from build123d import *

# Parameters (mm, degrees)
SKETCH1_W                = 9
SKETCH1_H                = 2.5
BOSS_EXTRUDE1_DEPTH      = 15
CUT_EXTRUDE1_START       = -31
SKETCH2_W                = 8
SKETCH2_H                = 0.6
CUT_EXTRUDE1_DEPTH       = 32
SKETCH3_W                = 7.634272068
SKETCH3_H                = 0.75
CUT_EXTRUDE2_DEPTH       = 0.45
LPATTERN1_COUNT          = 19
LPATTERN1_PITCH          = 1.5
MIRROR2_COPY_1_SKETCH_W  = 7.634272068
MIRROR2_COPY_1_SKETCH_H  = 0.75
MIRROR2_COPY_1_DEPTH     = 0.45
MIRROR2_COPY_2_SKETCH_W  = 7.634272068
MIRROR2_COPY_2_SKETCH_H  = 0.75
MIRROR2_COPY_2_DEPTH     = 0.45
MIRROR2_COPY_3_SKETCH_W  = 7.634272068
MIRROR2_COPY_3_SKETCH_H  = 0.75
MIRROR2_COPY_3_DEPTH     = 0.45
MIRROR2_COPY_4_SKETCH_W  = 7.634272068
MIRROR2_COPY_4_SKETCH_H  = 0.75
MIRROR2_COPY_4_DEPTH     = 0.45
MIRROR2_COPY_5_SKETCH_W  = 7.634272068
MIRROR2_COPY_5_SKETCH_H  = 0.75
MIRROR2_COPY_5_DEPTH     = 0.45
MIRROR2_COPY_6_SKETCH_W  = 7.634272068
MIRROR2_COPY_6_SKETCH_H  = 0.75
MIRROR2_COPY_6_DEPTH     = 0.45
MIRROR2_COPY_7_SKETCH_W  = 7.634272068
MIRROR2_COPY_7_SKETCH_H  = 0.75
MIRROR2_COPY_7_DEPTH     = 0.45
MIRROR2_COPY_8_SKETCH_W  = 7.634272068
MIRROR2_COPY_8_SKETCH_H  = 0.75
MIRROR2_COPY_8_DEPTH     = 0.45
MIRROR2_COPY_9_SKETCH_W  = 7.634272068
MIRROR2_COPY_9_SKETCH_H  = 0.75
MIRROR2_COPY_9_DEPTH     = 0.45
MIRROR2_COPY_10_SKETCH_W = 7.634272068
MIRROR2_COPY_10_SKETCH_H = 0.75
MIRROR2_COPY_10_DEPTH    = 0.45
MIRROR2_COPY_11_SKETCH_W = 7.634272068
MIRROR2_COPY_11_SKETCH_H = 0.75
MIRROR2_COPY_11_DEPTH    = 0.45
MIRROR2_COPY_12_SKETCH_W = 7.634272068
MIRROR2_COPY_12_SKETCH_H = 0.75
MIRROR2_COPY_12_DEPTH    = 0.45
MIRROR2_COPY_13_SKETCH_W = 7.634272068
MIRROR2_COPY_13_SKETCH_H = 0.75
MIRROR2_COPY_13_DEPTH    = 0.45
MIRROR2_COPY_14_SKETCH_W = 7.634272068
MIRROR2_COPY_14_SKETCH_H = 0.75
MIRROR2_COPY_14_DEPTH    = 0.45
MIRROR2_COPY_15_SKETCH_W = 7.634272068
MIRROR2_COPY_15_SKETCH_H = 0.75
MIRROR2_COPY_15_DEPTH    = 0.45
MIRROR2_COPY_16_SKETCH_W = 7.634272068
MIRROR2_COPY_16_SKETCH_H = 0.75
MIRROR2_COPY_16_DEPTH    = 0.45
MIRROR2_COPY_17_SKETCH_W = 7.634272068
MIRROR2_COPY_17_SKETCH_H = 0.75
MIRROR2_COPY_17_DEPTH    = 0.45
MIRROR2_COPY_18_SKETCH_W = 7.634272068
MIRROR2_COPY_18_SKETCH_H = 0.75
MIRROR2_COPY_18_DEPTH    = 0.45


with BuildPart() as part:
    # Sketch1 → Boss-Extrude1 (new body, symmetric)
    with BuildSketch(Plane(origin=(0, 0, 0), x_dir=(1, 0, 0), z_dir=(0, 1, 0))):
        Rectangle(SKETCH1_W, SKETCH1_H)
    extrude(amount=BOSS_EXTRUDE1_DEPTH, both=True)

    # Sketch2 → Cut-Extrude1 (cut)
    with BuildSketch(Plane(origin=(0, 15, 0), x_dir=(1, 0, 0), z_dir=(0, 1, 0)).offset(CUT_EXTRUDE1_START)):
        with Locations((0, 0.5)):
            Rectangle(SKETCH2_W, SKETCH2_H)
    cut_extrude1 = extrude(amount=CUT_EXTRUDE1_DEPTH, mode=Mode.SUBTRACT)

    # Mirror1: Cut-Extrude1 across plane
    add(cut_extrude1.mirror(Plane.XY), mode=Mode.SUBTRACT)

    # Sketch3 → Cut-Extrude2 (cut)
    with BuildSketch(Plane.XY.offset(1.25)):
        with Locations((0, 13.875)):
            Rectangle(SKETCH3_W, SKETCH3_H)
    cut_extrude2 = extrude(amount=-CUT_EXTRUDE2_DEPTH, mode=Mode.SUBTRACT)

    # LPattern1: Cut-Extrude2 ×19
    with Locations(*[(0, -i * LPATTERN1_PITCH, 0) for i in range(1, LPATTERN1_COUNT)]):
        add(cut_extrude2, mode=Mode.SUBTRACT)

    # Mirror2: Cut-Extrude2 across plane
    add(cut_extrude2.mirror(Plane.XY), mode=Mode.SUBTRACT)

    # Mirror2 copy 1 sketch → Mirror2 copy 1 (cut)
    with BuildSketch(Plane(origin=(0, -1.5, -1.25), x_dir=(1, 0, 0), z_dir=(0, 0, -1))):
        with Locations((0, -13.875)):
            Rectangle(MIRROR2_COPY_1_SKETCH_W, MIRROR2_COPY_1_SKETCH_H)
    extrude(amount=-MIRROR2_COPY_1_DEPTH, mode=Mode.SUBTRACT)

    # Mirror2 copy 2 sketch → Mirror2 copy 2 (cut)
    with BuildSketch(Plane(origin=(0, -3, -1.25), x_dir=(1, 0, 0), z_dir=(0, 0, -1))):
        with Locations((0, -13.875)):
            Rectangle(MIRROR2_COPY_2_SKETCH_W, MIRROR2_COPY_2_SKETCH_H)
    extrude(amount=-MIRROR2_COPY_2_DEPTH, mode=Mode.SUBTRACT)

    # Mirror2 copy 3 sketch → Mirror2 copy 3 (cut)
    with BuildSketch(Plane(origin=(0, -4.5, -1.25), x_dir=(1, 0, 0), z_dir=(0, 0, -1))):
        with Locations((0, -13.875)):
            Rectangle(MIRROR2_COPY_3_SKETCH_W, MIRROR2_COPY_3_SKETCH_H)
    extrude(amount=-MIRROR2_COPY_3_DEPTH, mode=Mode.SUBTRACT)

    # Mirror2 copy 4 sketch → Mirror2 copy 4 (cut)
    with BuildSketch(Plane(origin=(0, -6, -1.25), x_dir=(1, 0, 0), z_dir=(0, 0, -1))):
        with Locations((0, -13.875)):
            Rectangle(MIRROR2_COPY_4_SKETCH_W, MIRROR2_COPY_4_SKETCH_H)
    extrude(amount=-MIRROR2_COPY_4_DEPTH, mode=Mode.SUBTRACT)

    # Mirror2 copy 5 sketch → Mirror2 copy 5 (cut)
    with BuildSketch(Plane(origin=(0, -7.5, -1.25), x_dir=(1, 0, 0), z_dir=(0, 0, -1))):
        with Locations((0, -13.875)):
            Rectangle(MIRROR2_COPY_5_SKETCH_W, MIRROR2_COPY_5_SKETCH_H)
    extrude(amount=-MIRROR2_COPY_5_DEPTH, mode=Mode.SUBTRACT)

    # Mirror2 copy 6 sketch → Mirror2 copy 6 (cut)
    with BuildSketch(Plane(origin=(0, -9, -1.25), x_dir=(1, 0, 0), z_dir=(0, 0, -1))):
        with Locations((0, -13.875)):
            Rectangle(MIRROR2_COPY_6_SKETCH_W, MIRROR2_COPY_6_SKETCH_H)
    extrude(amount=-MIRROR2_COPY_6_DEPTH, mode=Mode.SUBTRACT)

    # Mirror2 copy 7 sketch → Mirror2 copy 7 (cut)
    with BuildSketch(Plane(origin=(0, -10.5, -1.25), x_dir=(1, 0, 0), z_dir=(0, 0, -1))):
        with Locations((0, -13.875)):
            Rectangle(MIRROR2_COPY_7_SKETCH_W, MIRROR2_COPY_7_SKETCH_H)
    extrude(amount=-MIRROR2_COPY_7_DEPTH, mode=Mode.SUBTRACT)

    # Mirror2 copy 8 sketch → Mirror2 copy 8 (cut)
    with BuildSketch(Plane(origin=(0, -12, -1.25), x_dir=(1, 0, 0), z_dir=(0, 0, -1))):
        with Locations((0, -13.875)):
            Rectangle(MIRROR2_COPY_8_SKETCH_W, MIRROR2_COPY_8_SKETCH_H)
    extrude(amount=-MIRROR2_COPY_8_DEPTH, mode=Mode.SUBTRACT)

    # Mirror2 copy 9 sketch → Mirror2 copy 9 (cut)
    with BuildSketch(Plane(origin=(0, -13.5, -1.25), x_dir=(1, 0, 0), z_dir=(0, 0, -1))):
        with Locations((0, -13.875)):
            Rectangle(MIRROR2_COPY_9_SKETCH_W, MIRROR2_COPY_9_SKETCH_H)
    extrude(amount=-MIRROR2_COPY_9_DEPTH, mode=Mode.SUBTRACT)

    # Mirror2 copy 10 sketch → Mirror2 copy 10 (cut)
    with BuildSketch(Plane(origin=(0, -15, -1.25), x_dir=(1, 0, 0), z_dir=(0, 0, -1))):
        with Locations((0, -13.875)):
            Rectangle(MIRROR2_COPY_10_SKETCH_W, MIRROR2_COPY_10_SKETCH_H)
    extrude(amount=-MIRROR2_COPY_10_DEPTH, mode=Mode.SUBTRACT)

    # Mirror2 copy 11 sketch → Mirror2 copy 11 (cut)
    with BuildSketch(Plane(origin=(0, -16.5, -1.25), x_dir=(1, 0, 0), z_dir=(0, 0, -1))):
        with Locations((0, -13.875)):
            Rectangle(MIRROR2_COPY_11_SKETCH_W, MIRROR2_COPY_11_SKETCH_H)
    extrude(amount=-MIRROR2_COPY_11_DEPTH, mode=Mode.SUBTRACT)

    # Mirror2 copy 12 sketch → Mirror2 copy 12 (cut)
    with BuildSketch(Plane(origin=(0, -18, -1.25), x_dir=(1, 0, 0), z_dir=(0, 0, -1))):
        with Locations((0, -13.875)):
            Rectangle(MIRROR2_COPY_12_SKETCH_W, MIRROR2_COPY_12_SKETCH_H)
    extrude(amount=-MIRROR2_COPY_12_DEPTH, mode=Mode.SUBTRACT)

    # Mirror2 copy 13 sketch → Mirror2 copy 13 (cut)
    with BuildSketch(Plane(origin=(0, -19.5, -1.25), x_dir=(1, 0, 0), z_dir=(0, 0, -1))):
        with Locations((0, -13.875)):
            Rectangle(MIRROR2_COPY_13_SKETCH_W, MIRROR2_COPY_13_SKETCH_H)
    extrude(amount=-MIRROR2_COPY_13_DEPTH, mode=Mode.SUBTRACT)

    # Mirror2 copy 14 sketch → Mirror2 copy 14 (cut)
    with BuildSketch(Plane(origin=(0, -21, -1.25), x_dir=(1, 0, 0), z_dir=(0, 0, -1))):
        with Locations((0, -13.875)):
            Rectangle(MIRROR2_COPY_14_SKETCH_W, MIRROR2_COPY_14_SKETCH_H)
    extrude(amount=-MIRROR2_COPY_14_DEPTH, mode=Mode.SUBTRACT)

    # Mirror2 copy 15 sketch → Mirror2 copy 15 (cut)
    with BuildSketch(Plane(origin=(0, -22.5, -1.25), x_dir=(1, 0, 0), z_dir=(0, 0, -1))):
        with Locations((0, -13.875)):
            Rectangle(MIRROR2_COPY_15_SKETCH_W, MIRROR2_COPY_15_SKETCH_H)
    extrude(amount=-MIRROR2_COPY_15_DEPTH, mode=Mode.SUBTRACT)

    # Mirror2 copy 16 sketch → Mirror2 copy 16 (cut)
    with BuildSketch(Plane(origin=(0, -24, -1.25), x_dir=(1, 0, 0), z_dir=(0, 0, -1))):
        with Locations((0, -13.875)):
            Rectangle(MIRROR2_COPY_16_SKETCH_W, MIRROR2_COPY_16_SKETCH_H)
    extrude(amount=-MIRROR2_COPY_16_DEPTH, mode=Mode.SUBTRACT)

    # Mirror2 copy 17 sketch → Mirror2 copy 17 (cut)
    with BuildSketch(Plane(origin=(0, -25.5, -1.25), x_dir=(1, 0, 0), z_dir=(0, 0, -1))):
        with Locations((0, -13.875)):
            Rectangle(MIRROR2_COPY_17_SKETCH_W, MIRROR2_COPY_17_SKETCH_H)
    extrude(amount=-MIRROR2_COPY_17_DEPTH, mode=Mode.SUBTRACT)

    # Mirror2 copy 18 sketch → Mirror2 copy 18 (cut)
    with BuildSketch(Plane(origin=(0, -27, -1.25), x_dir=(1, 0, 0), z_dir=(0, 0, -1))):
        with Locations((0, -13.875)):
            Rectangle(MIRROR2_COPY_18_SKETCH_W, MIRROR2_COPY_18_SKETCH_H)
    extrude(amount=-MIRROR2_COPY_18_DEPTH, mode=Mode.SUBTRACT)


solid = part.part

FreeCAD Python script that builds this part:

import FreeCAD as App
import Part
import Sketcher

V = App.Vector

doc = App.newDocument("Part")
body = doc.addObject("PartDesign::Body", "Body")

# Sketch on XZ plane
sketch1 = body.newObject("Sketcher::SketchObject", "Sketch")
sketch1.AttachmentSupport = (doc.getObject("XZ_Plane"), [""])
sketch1.MapMode = "FlatFace"
sketch1.addGeometry(Part.LineSegment(V(-4.5, -1.25, 0), V(-4.5, 1.25, 0)), False)
sketch1.addGeometry(Part.LineSegment(V(-4.5, 1.25, 0), V(4.5, 1.25, 0)), False)
sketch1.addGeometry(Part.LineSegment(V(4.5, 1.25, 0), V(4.5, -1.25, 0)), False)
sketch1.addGeometry(Part.LineSegment(V(4.5, -1.25, 0), V(-4.5, -1.25, 0)), False)
sketch1.addConstraint(Sketcher.Constraint("Coincident", 0, 2, 1, 1))
sketch1.addConstraint(Sketcher.Constraint("Coincident", 1, 2, 2, 1))
sketch1.addConstraint(Sketcher.Constraint("Coincident", 2, 2, 3, 1))
sketch1.addConstraint(Sketcher.Constraint("Coincident", 3, 2, 0, 1))
sketch1.addConstraint(Sketcher.Constraint("Vertical", 0))
sketch1.addConstraint(Sketcher.Constraint("Horizontal", 1))
sketch1.addConstraint(Sketcher.Constraint("Vertical", 2))
sketch1.addConstraint(Sketcher.Constraint("Horizontal", 3))
sketch1.addConstraint(Sketcher.Constraint("Symmetric", 0, 2, 2, 2, -1, 1))
sketch1.addConstraint(Sketcher.Constraint("DistanceX", 1, 1, 1, 2, 9.0))
sketch1.addConstraint(Sketcher.Constraint("DistanceY", 0, 1, 0, 2, 2.5))
pad1 = body.newObject("PartDesign::Pad", "Pad")
pad1.Profile = sketch1
pad1.Length = 30
pad1.Midplane = True

# Sketch on XZ plane
sketch2 = body.newObject("Sketcher::SketchObject", "Sketch001")
sketch2.AttachmentSupport = (doc.getObject("XZ_Plane"), [""])
sketch2.MapMode = "FlatFace"
sketch2.AttachmentOffset = App.Placement(V(0, 0, 16), App.Rotation())
sketch2.addGeometry(Part.LineSegment(V(-4, -0.8, 0), V(-4, -0.2, 0)), False)
sketch2.addGeometry(Part.LineSegment(V(-4, -0.2, 0), V(4, -0.2, 0)), False)
sketch2.addGeometry(Part.LineSegment(V(4, -0.2, 0), V(4, -0.8, 0)), False)
sketch2.addGeometry(Part.LineSegment(V(4, -0.8, 0), V(-4, -0.8, 0)), False)
sketch2.addConstraint(Sketcher.Constraint("Coincident", 0, 2, 1, 1))
sketch2.addConstraint(Sketcher.Constraint("Coincident", 1, 2, 2, 1))
sketch2.addConstraint(Sketcher.Constraint("Coincident", 2, 2, 3, 1))
sketch2.addConstraint(Sketcher.Constraint("Coincident", 3, 2, 0, 1))
sketch2.addConstraint(Sketcher.Constraint("Vertical", 0))
sketch2.addConstraint(Sketcher.Constraint("Horizontal", 1))
sketch2.addConstraint(Sketcher.Constraint("Vertical", 2))
sketch2.addConstraint(Sketcher.Constraint("Horizontal", 3))
sketch2.addConstraint(Sketcher.Constraint("DistanceX", 1, 1, 1, 2, 8.0))
sketch2.addConstraint(Sketcher.Constraint("DistanceY", 0, 1, 0, 2, 0.6))
sketch2.addConstraint(Sketcher.Constraint("DistanceX", 0, 2, -1, 1, 4.0))
sketch2.addConstraint(Sketcher.Constraint("DistanceY", 0, 2, -1, 1, 0.2))
pocket1 = body.newObject("PartDesign::Pocket", "Pocket")
pocket1.Profile = sketch2
pocket1.Length = 32
doc.recompute()

mirrored = body.newObject("PartDesign::Mirrored", "Mirrored")
mirrored.Originals = [pocket1]
mirrored.MirrorPlane = (doc.getObject("XY_Plane"), [""])
body.Tip = mirrored

# Sketch on XY plane
sketch3 = body.newObject("Sketcher::SketchObject", "Sketch002")
sketch3.AttachmentSupport = (doc.getObject("XY_Plane"), [""])
sketch3.MapMode = "FlatFace"
sketch3.AttachmentOffset = App.Placement(V(0, 0, 1.25), App.Rotation())
sketch3.addGeometry(Part.LineSegment(V(-3.817136, 14.25, 0), V(-3.817136, 13.5, 0)), False)
sketch3.addGeometry(Part.LineSegment(V(-3.817136, 13.5, 0), V(3.817136, 13.5, 0)), False)
sketch3.addGeometry(Part.LineSegment(V(3.817136, 13.5, 0), V(3.817136, 14.25, 0)), False)
sketch3.addGeometry(Part.LineSegment(V(3.817136, 14.25, 0), V(-3.817136, 14.25, 0)), False)
sketch3.addConstraint(Sketcher.Constraint("Coincident", 0, 2, 1, 1))
sketch3.addConstraint(Sketcher.Constraint("Coincident", 1, 2, 2, 1))
sketch3.addConstraint(Sketcher.Constraint("Coincident", 2, 2, 3, 1))
sketch3.addConstraint(Sketcher.Constraint("Coincident", 3, 2, 0, 1))
sketch3.addConstraint(Sketcher.Constraint("Vertical", 0))
sketch3.addConstraint(Sketcher.Constraint("Horizontal", 1))
sketch3.addConstraint(Sketcher.Constraint("Vertical", 2))
sketch3.addConstraint(Sketcher.Constraint("Horizontal", 3))
sketch3.addConstraint(Sketcher.Constraint("DistanceY", 0, 2, 0, 1, 0.75))
sketch3.addConstraint(Sketcher.Constraint("DistanceY", -1, 1, 0, 2, 13.5))
sketch3.addConstraint(Sketcher.Constraint("DistanceX", 1, 1, 1, 2, 7.634272))
sketch3.addConstraint(Sketcher.Constraint("DistanceX", 0, 2, -1, 1, 3.817136))
pocket2 = body.newObject("PartDesign::Pocket", "Pocket001")
pocket2.Profile = sketch3
pocket2.Length = 0.45
doc.recompute()

linearpattern = body.newObject("PartDesign::LinearPattern", "LinearPattern")
linearpattern.Originals = [pocket2]
linearpattern.Direction = (doc.getObject("Y_Axis"), [""])
linearpattern.Mode = "offset"
linearpattern.Offset = 1.5
linearpattern.Occurrences = 19
linearpattern.Reversed = True
body.Tip = linearpattern
doc.recompute()

mirrored2 = body.newObject("PartDesign::Mirrored", "Mirrored001")
mirrored2.Originals = [pocket2]
mirrored2.MirrorPlane = (doc.getObject("XY_Plane"), [""])
body.Tip = mirrored2

# Sketch on XY plane
sketch4 = body.newObject("Sketcher::SketchObject", "Sketch003")
sketch4.AttachmentSupport = (doc.getObject("XY_Plane"), [""])
sketch4.MapMode = "FlatFace"
sketch4.AttachmentOffset = App.Placement(V(0, 0, -1.25), App.Rotation())
sketch4.addGeometry(Part.LineSegment(V(-3.817136, 12, 0), V(-3.817136, 12.75, 0)), False)
sketch4.addGeometry(Part.LineSegment(V(-3.817136, 12.75, 0), V(3.817136, 12.75, 0)), False)
sketch4.addGeometry(Part.LineSegment(V(3.817136, 12.75, 0), V(3.817136, 12, 0)), False)
sketch4.addGeometry(Part.LineSegment(V(3.817136, 12, 0), V(-3.817136, 12, 0)), False)
sketch4.addConstraint(Sketcher.Constraint("Coincident", 0, 2, 1, 1))
sketch4.addConstraint(Sketcher.Constraint("Coincident", 1, 2, 2, 1))
sketch4.addConstraint(Sketcher.Constraint("Coincident", 2, 2, 3, 1))
sketch4.addConstraint(Sketcher.Constraint("Coincident", 3, 2, 0, 1))
sketch4.addConstraint(Sketcher.Constraint("Vertical", 0))
sketch4.addConstraint(Sketcher.Constraint("Horizontal", 1))
sketch4.addConstraint(Sketcher.Constraint("Vertical", 2))
sketch4.addConstraint(Sketcher.Constraint("Horizontal", 3))
sketch4.addConstraint(Sketcher.Constraint("DistanceY", -1, 1, 2, 2, 12.0))
sketch4.addConstraint(Sketcher.Constraint("DistanceY", 0, 1, 0, 2, 0.75))
sketch4.addConstraint(Sketcher.Constraint("DistanceX", 1, 1, 1, 2, 7.634272))
sketch4.addConstraint(Sketcher.Constraint("DistanceX", 0, 2, -1, 1, 3.817136))
pocket3 = body.newObject("PartDesign::Pocket", "Pocket002")
pocket3.Profile = sketch4
pocket3.Length = 0.45
pocket3.Reversed = True

# Sketch on XY plane
sketch5 = body.newObject("Sketcher::SketchObject", "Sketch004")
sketch5.AttachmentSupport = (doc.getObject("XY_Plane"), [""])
sketch5.MapMode = "FlatFace"
sketch5.AttachmentOffset = App.Placement(V(0, 0, -1.25), App.Rotation())
sketch5.addGeometry(Part.LineSegment(V(-3.817136, 10.5, 0), V(-3.817136, 11.25, 0)), False)
sketch5.addGeometry(Part.LineSegment(V(-3.817136, 11.25, 0), V(3.817136, 11.25, 0)), False)
sketch5.addGeometry(Part.LineSegment(V(3.817136, 11.25, 0), V(3.817136, 10.5, 0)), False)
sketch5.addGeometry(Part.LineSegment(V(3.817136, 10.5, 0), V(-3.817136, 10.5, 0)), False)
sketch5.addConstraint(Sketcher.Constraint("Coincident", 0, 2, 1, 1))
sketch5.addConstraint(Sketcher.Constraint("Coincident", 1, 2, 2, 1))
sketch5.addConstraint(Sketcher.Constraint("Coincident", 2, 2, 3, 1))
sketch5.addConstraint(Sketcher.Constraint("Coincident", 3, 2, 0, 1))
sketch5.addConstraint(Sketcher.Constraint("Vertical", 0))
sketch5.addConstraint(Sketcher.Constraint("Horizontal", 1))
sketch5.addConstraint(Sketcher.Constraint("Vertical", 2))
sketch5.addConstraint(Sketcher.Constraint("Horizontal", 3))
sketch5.addConstraint(Sketcher.Constraint("DistanceY", 0, 1, 0, 2, 0.75))
sketch5.addConstraint(Sketcher.Constraint("DistanceY", -1, 1, 2, 2, 10.5))
sketch5.addConstraint(Sketcher.Constraint("DistanceX", 1, 1, 1, 2, 7.634272))
sketch5.addConstraint(Sketcher.Constraint("DistanceX", 0, 2, -1, 1, 3.817136))
pocket4 = body.newObject("PartDesign::Pocket", "Pocket003")
pocket4.Profile = sketch5
pocket4.Length = 0.45
pocket4.Reversed = True

# Sketch on XY plane
sketch6 = body.newObject("Sketcher::SketchObject", "Sketch005")
sketch6.AttachmentSupport = (doc.getObject("XY_Plane"), [""])
sketch6.MapMode = "FlatFace"
sketch6.AttachmentOffset = App.Placement(V(0, 0, -1.25), App.Rotation())
sketch6.addGeometry(Part.LineSegment(V(-3.817136, 9, 0), V(-3.817136, 9.75, 0)), False)
sketch6.addGeometry(Part.LineSegment(V(-3.817136, 9.75, 0), V(3.817136, 9.75, 0)), False)
sketch6.addGeometry(Part.LineSegment(V(3.817136, 9.75, 0), V(3.817136, 9, 0)), False)
sketch6.addGeometry(Part.LineSegment(V(3.817136, 9, 0), V(-3.817136, 9, 0)), False)
sketch6.addConstraint(Sketcher.Constraint("Coincident", 0, 2, 1, 1))
sketch6.addConstraint(Sketcher.Constraint("Coincident", 1, 2, 2, 1))
sketch6.addConstraint(Sketcher.Constraint("Coincident", 2, 2, 3, 1))
sketch6.addConstraint(Sketcher.Constraint("Coincident", 3, 2, 0, 1))
sketch6.addConstraint(Sketcher.Constraint("Vertical", 0))
sketch6.addConstraint(Sketcher.Constraint("Horizontal", 1))
sketch6.addConstraint(Sketcher.Constraint("Vertical", 2))
sketch6.addConstraint(Sketcher.Constraint("Horizontal", 3))
sketch6.addConstraint(Sketcher.Constraint("DistanceY", -1, 1, 2, 2, 9.0))
sketch6.addConstraint(Sketcher.Constraint("DistanceY", 0, 1, 0, 2, 0.75))
sketch6.addConstraint(Sketcher.Constraint("DistanceX", 1, 1, 1, 2, 7.634272))
sketch6.addConstraint(Sketcher.Constraint("DistanceX", 0, 2, -1, 1, 3.817136))
pocket5 = body.newObject("PartDesign::Pocket", "Pocket004")
pocket5.Profile = sketch6
pocket5.Length = 0.45
pocket5.Reversed = True

# Sketch on XY plane
sketch7 = body.newObject("Sketcher::SketchObject", "Sketch006")
sketch7.AttachmentSupport = (doc.getObject("XY_Plane"), [""])
sketch7.MapMode = "FlatFace"
sketch7.AttachmentOffset = App.Placement(V(0, 0, -1.25), App.Rotation())
sketch7.addGeometry(Part.LineSegment(V(-3.817136, 7.5, 0), V(-3.817136, 8.25, 0)), False)
sketch7.addGeometry(Part.LineSegment(V(-3.817136, 8.25, 0), V(3.817136, 8.25, 0)), False)
sketch7.addGeometry(Part.LineSegment(V(3.817136, 8.25, 0), V(3.817136, 7.5, 0)), False)
sketch7.addGeometry(Part.LineSegment(V(3.817136, 7.5, 0), V(-3.817136, 7.5, 0)), False)
sketch7.addConstraint(Sketcher.Constraint("Coincident", 0, 2, 1, 1))
sketch7.addConstraint(Sketcher.Constraint("Coincident", 1, 2, 2, 1))
sketch7.addConstraint(Sketcher.Constraint("Coincident", 2, 2, 3, 1))
sketch7.addConstraint(Sketcher.Constraint("Coincident", 3, 2, 0, 1))
sketch7.addConstraint(Sketcher.Constraint("Vertical", 0))
sketch7.addConstraint(Sketcher.Constraint("Horizontal", 1))
sketch7.addConstraint(Sketcher.Constraint("Vertical", 2))
sketch7.addConstraint(Sketcher.Constraint("Horizontal", 3))
sketch7.addConstraint(Sketcher.Constraint("DistanceY", 0, 1, 0, 2, 0.75))
sketch7.addConstraint(Sketcher.Constraint("DistanceY", -1, 1, 2, 2, 7.5))
sketch7.addConstraint(Sketcher.Constraint("DistanceX", 1, 1, 1, 2, 7.634272))
sketch7.addConstraint(Sketcher.Constraint("DistanceX", 0, 2, -1, 1, 3.817136))
pocket6 = body.newObject("PartDesign::Pocket", "Pocket005")
pocket6.Profile = sketch7
pocket6.Length = 0.45
pocket6.Reversed = True

# Sketch on XY plane
sketch8 = body.newObject("Sketcher::SketchObject", "Sketch007")
sketch8.AttachmentSupport = (doc.getObject("XY_Plane"), [""])
sketch8.MapMode = "FlatFace"
sketch8.AttachmentOffset = App.Placement(V(0, 0, -1.25), App.Rotation())
sketch8.addGeometry(Part.LineSegment(V(-3.817136, 6, 0), V(-3.817136, 6.75, 0)), False)
sketch8.addGeometry(Part.LineSegment(V(-3.817136, 6.75, 0), V(3.817136, 6.75, 0)), False)
sketch8.addGeometry(Part.LineSegment(V(3.817136, 6.75, 0), V(3.817136, 6, 0)), False)
sketch8.addGeometry(Part.LineSegment(V(3.817136, 6, 0), V(-3.817136, 6, 0)), False)
sketch8.addConstraint(Sketcher.Constraint("Coincident", 0, 2, 1, 1))
sketch8.addConstraint(Sketcher.Constraint("Coincident", 1, 2, 2, 1))
sketch8.addConstraint(Sketcher.Constraint("Coincident", 2, 2, 3, 1))
sketch8.addConstraint(Sketcher.Constraint("Coincident", 3, 2, 0, 1))
sketch8.addConstraint(Sketcher.Constraint("Vertical", 0))
sketch8.addConstraint(Sketcher.Constraint("Horizontal", 1))
sketch8.addConstraint(Sketcher.Constraint("Vertical", 2))
sketch8.addConstraint(Sketcher.Constraint("Horizontal", 3))
sketch8.addConstraint(Sketcher.Constraint("DistanceY", -1, 1, 2, 2, 6.0))
sketch8.addConstraint(Sketcher.Constraint("DistanceY", 0, 1, 0, 2, 0.75))
sketch8.addConstraint(Sketcher.Constraint("DistanceX", 1, 1, 1, 2, 7.634272))
sketch8.addConstraint(Sketcher.Constraint("DistanceX", 0, 2, -1, 1, 3.817136))
pocket7 = body.newObject("PartDesign::Pocket", "Pocket006")
pocket7.Profile = sketch8
pocket7.Length = 0.45
pocket7.Reversed = True

# Sketch on XY plane
sketch9 = body.newObject("Sketcher::SketchObject", "Sketch008")
sketch9.AttachmentSupport = (doc.getObject("XY_Plane"), [""])
sketch9.MapMode = "FlatFace"
sketch9.AttachmentOffset = App.Placement(V(0, 0, -1.25), App.Rotation())
sketch9.addGeometry(Part.LineSegment(V(-3.817136, 4.5, 0), V(-3.817136, 5.25, 0)), False)
sketch9.addGeometry(Part.LineSegment(V(-3.817136, 5.25, 0), V(3.817136, 5.25, 0)), False)
sketch9.addGeometry(Part.LineSegment(V(3.817136, 5.25, 0), V(3.817136, 4.5, 0)), False)
sketch9.addGeometry(Part.LineSegment(V(3.817136, 4.5, 0), V(-3.817136, 4.5, 0)), False)
sketch9.addConstraint(Sketcher.Constraint("Coincident", 0, 2, 1, 1))
sketch9.addConstraint(Sketcher.Constraint("Coincident", 1, 2, 2, 1))
sketch9.addConstraint(Sketcher.Constraint("Coincident", 2, 2, 3, 1))
sketch9.addConstraint(Sketcher.Constraint("Coincident", 3, 2, 0, 1))
sketch9.addConstraint(Sketcher.Constraint("Vertical", 0))
sketch9.addConstraint(Sketcher.Constraint("Horizontal", 1))
sketch9.addConstraint(Sketcher.Constraint("Vertical", 2))
sketch9.addConstraint(Sketcher.Constraint("Horizontal", 3))
sketch9.addConstraint(Sketcher.Constraint("DistanceY", 0, 1, 0, 2, 0.75))
sketch9.addConstraint(Sketcher.Constraint("DistanceY", -1, 1, 2, 2, 4.5))
sketch9.addConstraint(Sketcher.Constraint("DistanceX", 1, 1, 1, 2, 7.634272))
sketch9.addConstraint(Sketcher.Constraint("DistanceX", 0, 2, -1, 1, 3.817136))
pocket8 = body.newObject("PartDesign::Pocket", "Pocket007")
pocket8.Profile = sketch9
pocket8.Length = 0.45
pocket8.Reversed = True

# Sketch on XY plane
sketch10 = body.newObject("Sketcher::SketchObject", "Sketch009")
sketch10.AttachmentSupport = (doc.getObject("XY_Plane"), [""])
sketch10.MapMode = "FlatFace"
sketch10.AttachmentOffset = App.Placement(V(0, 0, -1.25), App.Rotation())
sketch10.addGeometry(Part.LineSegment(V(-3.817136, 3, 0), V(-3.817136, 3.75, 0)), False)
sketch10.addGeometry(Part.LineSegment(V(-3.817136, 3.75, 0), V(3.817136, 3.75, 0)), False)
sketch10.addGeometry(Part.LineSegment(V(3.817136, 3.75, 0), V(3.817136, 3, 0)), False)
sketch10.addGeometry(Part.LineSegment(V(3.817136, 3, 0), V(-3.817136, 3, 0)), False)
sketch10.addConstraint(Sketcher.Constraint("Coincident", 0, 2, 1, 1))
sketch10.addConstraint(Sketcher.Constraint("Coincident", 1, 2, 2, 1))
sketch10.addConstraint(Sketcher.Constraint("Coincident", 2, 2, 3, 1))
sketch10.addConstraint(Sketcher.Constraint("Coincident", 3, 2, 0, 1))
sketch10.addConstraint(Sketcher.Constraint("Vertical", 0))
sketch10.addConstraint(Sketcher.Constraint("Horizontal", 1))
sketch10.addConstraint(Sketcher.Constraint("Vertical", 2))
sketch10.addConstraint(Sketcher.Constraint("Horizontal", 3))
sketch10.addConstraint(Sketcher.Constraint("DistanceY", -1, 1, 2, 2, 3.0))
sketch10.addConstraint(Sketcher.Constraint("DistanceY", 0, 1, 0, 2, 0.75))
sketch10.addConstraint(Sketcher.Constraint("DistanceX", 1, 1, 1, 2, 7.634272))
sketch10.addConstraint(Sketcher.Constraint("DistanceX", 0, 2, -1, 1, 3.817136))
pocket9 = body.newObject("PartDesign::Pocket", "Pocket008")
pocket9.Profile = sketch10
pocket9.Length = 0.45
pocket9.Reversed = True

# Sketch on XY plane
sketch11 = body.newObject("Sketcher::SketchObject", "Sketch010")
sketch11.AttachmentSupport = (doc.getObject("XY_Plane"), [""])
sketch11.MapMode = "FlatFace"
sketch11.AttachmentOffset = App.Placement(V(0, 0, -1.25), App.Rotation())
sketch11.addGeometry(Part.LineSegment(V(-3.817136, 1.5, 0), V(-3.817136, 2.25, 0)), False)
sketch11.addGeometry(Part.LineSegment(V(-3.817136, 2.25, 0), V(3.817136, 2.25, 0)), False)
sketch11.addGeometry(Part.LineSegment(V(3.817136, 2.25, 0), V(3.817136, 1.5, 0)), False)
sketch11.addGeometry(Part.LineSegment(V(3.817136, 1.5, 0), V(-3.817136, 1.5, 0)), False)
sketch11.addConstraint(Sketcher.Constraint("Coincident", 0, 2, 1, 1))
sketch11.addConstraint(Sketcher.Constraint("Coincident", 1, 2, 2, 1))
sketch11.addConstraint(Sketcher.Constraint("Coincident", 2, 2, 3, 1))
sketch11.addConstraint(Sketcher.Constraint("Coincident", 3, 2, 0, 1))
sketch11.addConstraint(Sketcher.Constraint("Vertical", 0))
sketch11.addConstraint(Sketcher.Constraint("Horizontal", 1))
sketch11.addConstraint(Sketcher.Constraint("Vertical", 2))
sketch11.addConstraint(Sketcher.Constraint("Horizontal", 3))
sketch11.addConstraint(Sketcher.Constraint("DistanceY", 0, 1, 0, 2, 0.75))
sketch11.addConstraint(Sketcher.Constraint("DistanceY", -1, 1, 2, 2, 1.5))
sketch11.addConstraint(Sketcher.Constraint("DistanceX", 1, 1, 1, 2, 7.634272))
sketch11.addConstraint(Sketcher.Constraint("DistanceX", 0, 2, -1, 1, 3.817136))
pocket10 = body.newObject("PartDesign::Pocket", "Pocket009")
pocket10.Profile = sketch11
pocket10.Length = 0.45
pocket10.Reversed = True

# Sketch on XY plane
sketch12 = body.newObject("Sketcher::SketchObject", "Sketch011")
sketch12.AttachmentSupport = (doc.getObject("XY_Plane"), [""])
sketch12.MapMode = "FlatFace"
sketch12.AttachmentOffset = App.Placement(V(0, 0, -1.25), App.Rotation())
sketch12.addGeometry(Part.LineSegment(V(-3.817136, 0, 0), V(-3.817136, 0.75, 0)), False)
sketch12.addGeometry(Part.LineSegment(V(-3.817136, 0.75, 0), V(3.817136, 0.75, 0)), False)
sketch12.addGeometry(Part.LineSegment(V(3.817136, 0.75, 0), V(3.817136, 0, 0)), False)
sketch12.addGeometry(Part.LineSegment(V(3.817136, 0, 0), V(-3.817136, 0, 0)), False)
sketch12.addConstraint(Sketcher.Constraint("Coincident", 0, 2, 1, 1))
sketch12.addConstraint(Sketcher.Constraint("Coincident", 1, 2, 2, 1))
sketch12.addConstraint(Sketcher.Constraint("Coincident", 2, 2, 3, 1))
sketch12.addConstraint(Sketcher.Constraint("Coincident", 3, 2, 0, 1))
sketch12.addConstraint(Sketcher.Constraint("Vertical", 0))
sketch12.addConstraint(Sketcher.Constraint("Horizontal", 1))
sketch12.addConstraint(Sketcher.Constraint("Vertical", 2))
sketch12.addConstraint(Sketcher.Constraint("Horizontal", 3))
sketch12.addConstraint(Sketcher.Constraint("Symmetric", 2, 2, 3, 2, -1, 1))
sketch12.addConstraint(Sketcher.Constraint("DistanceY", 0, 1, 0, 2, 0.75))
sketch12.addConstraint(Sketcher.Constraint("DistanceX", 1, 1, 1, 2, 7.634272))
pocket11 = body.newObject("PartDesign::Pocket", "Pocket010")
pocket11.Profile = sketch12
pocket11.Length = 0.45
pocket11.Reversed = True

# Sketch on XY plane
sketch13 = body.newObject("Sketcher::SketchObject", "Sketch012")
sketch13.AttachmentSupport = (doc.getObject("XY_Plane"), [""])
sketch13.MapMode = "FlatFace"
sketch13.AttachmentOffset = App.Placement(V(0, 0, -1.25), App.Rotation())
sketch13.addGeometry(Part.LineSegment(V(-3.817136, -1.5, 0), V(-3.817136, -0.75, 0)), False)
sketch13.addGeometry(Part.LineSegment(V(-3.817136, -0.75, 0), V(3.817136, -0.75, 0)), False)
sketch13.addGeometry(Part.LineSegment(V(3.817136, -0.75, 0), V(3.817136, -1.5, 0)), False)
sketch13.addGeometry(Part.LineSegment(V(3.817136, -1.5, 0), V(-3.817136, -1.5, 0)), False)
sketch13.addConstraint(Sketcher.Constraint("Coincident", 0, 2, 1, 1))
sketch13.addConstraint(Sketcher.Constraint("Coincident", 1, 2, 2, 1))
sketch13.addConstraint(Sketcher.Constraint("Coincident", 2, 2, 3, 1))
sketch13.addConstraint(Sketcher.Constraint("Coincident", 3, 2, 0, 1))
sketch13.addConstraint(Sketcher.Constraint("Vertical", 0))
sketch13.addConstraint(Sketcher.Constraint("Horizontal", 1))
sketch13.addConstraint(Sketcher.Constraint("Vertical", 2))
sketch13.addConstraint(Sketcher.Constraint("Horizontal", 3))
sketch13.addConstraint(Sketcher.Constraint("DistanceY", 0, 1, 0, 2, 0.75))
sketch13.addConstraint(Sketcher.Constraint("DistanceY", 2, 2, -1, 1, 1.5))
sketch13.addConstraint(Sketcher.Constraint("DistanceX", 1, 1, 1, 2, 7.634272))
sketch13.addConstraint(Sketcher.Constraint("DistanceX", 0, 2, -1, 1, 3.817136))
pocket12 = body.newObject("PartDesign::Pocket", "Pocket011")
pocket12.Profile = sketch13
pocket12.Length = 0.45
pocket12.Reversed = True

# Sketch on XY plane
sketch14 = body.newObject("Sketcher::SketchObject", "Sketch013")
sketch14.AttachmentSupport = (doc.getObject("XY_Plane"), [""])
sketch14.MapMode = "FlatFace"
sketch14.AttachmentOffset = App.Placement(V(0, 0, -1.25), App.Rotation())
sketch14.addGeometry(Part.LineSegment(V(-3.817136, -3, 0), V(-3.817136, -2.25, 0)), False)
sketch14.addGeometry(Part.LineSegment(V(-3.817136, -2.25, 0), V(3.817136, -2.25, 0)), False)
sketch14.addGeometry(Part.LineSegment(V(3.817136, -2.25, 0), V(3.817136, -3, 0)), False)
sketch14.addGeometry(Part.LineSegment(V(3.817136, -3, 0), V(-3.817136, -3, 0)), False)
sketch14.addConstraint(Sketcher.Constraint("Coincident", 0, 2, 1, 1))
sketch14.addConstraint(Sketcher.Constraint("Coincident", 1, 2, 2, 1))
sketch14.addConstraint(Sketcher.Constraint("Coincident", 2, 2, 3, 1))
sketch14.addConstraint(Sketcher.Constraint("Coincident", 3, 2, 0, 1))
sketch14.addConstraint(Sketcher.Constraint("Vertical", 0))
sketch14.addConstraint(Sketcher.Constraint("Horizontal", 1))
sketch14.addConstraint(Sketcher.Constraint("Vertical", 2))
sketch14.addConstraint(Sketcher.Constraint("Horizontal", 3))
sketch14.addConstraint(Sketcher.Constraint("DistanceY", 2, 2, -1, 1, 3.0))
sketch14.addConstraint(Sketcher.Constraint("DistanceY", 0, 1, 0, 2, 0.75))
sketch14.addConstraint(Sketcher.Constraint("DistanceX", 1, 1, 1, 2, 7.634272))
sketch14.addConstraint(Sketcher.Constraint("DistanceX", 0, 2, -1, 1, 3.817136))
pocket13 = body.newObject("PartDesign::Pocket", "Pocket012")
pocket13.Profile = sketch14
pocket13.Length = 0.45
pocket13.Reversed = True

# Sketch on XY plane
sketch15 = body.newObject("Sketcher::SketchObject", "Sketch014")
sketch15.AttachmentSupport = (doc.getObject("XY_Plane"), [""])
sketch15.MapMode = "FlatFace"
sketch15.AttachmentOffset = App.Placement(V(0, 0, -1.25), App.Rotation())
sketch15.addGeometry(Part.LineSegment(V(-3.817136, -4.5, 0), V(-3.817136, -3.75, 0)), False)
sketch15.addGeometry(Part.LineSegment(V(-3.817136, -3.75, 0), V(3.817136, -3.75, 0)), False)
sketch15.addGeometry(Part.LineSegment(V(3.817136, -3.75, 0), V(3.817136, -4.5, 0)), False)
sketch15.addGeometry(Part.LineSegment(V(3.817136, -4.5, 0), V(-3.817136, -4.5, 0)), False)
sketch15.addConstraint(Sketcher.Constraint("Coincident", 0, 2, 1, 1))
sketch15.addConstraint(Sketcher.Constraint("Coincident", 1, 2, 2, 1))
sketch15.addConstraint(Sketcher.Constraint("Coincident", 2, 2, 3, 1))
sketch15.addConstraint(Sketcher.Constraint("Coincident", 3, 2, 0, 1))
sketch15.addConstraint(Sketcher.Constraint("Vertical", 0))
sketch15.addConstraint(Sketcher.Constraint("Horizontal", 1))
sketch15.addConstraint(Sketcher.Constraint("Vertical", 2))
sketch15.addConstraint(Sketcher.Constraint("Horizontal", 3))
sketch15.addConstraint(Sketcher.Constraint("DistanceY", 0, 1, 0, 2, 0.75))
sketch15.addConstraint(Sketcher.Constraint("DistanceY", 2, 2, -1, 1, 4.5))
sketch15.addConstraint(Sketcher.Constraint("DistanceX", 1, 1, 1, 2, 7.634272))
sketch15.addConstraint(Sketcher.Constraint("DistanceX", 0, 2, -1, 1, 3.817136))
pocket14 = body.newObject("PartDesign::Pocket", "Pocket013")
pocket14.Profile = sketch15
pocket14.Length = 0.45
pocket14.Reversed = True

# Sketch on XY plane
sketch16 = body.newObject("Sketcher::SketchObject", "Sketch015")
sketch16.AttachmentSupport = (doc.getObject("XY_Plane"), [""])
sketch16.MapMode = "FlatFace"
sketch16.AttachmentOffset = App.Placement(V(0, 0, -1.25), App.Rotation())
sketch16.addGeometry(Part.LineSegment(V(-3.817136, -6, 0), V(-3.817136, -5.25, 0)), False)
sketch16.addGeometry(Part.LineSegment(V(-3.817136, -5.25, 0), V(3.817136, -5.25, 0)), False)
sketch16.addGeometry(Part.LineSegment(V(3.817136, -5.25, 0), V(3.817136, -6, 0)), False)
sketch16.addGeometry(Part.LineSegment(V(3.817136, -6, 0), V(-3.817136, -6, 0)), False)
sketch16.addConstraint(Sketcher.Constraint("Coincident", 0, 2, 1, 1))
sketch16.addConstraint(Sketcher.Constraint("Coincident", 1, 2, 2, 1))
sketch16.addConstraint(Sketcher.Constraint("Coincident", 2, 2, 3, 1))
sketch16.addConstraint(Sketcher.Constraint("Coincident", 3, 2, 0, 1))
sketch16.addConstraint(Sketcher.Constraint("Vertical", 0))
sketch16.addConstraint(Sketcher.Constraint("Horizontal", 1))
sketch16.addConstraint(Sketcher.Constraint("Vertical", 2))
sketch16.addConstraint(Sketcher.Constraint("Horizontal", 3))
sketch16.addConstraint(Sketcher.Constraint("DistanceY", 2, 2, -1, 1, 6.0))
sketch16.addConstraint(Sketcher.Constraint("DistanceY", 0, 1, 0, 2, 0.75))
sketch16.addConstraint(Sketcher.Constraint("DistanceX", 1, 1, 1, 2, 7.634272))
sketch16.addConstraint(Sketcher.Constraint("DistanceX", 0, 2, -1, 1, 3.817136))
pocket15 = body.newObject("PartDesign::Pocket", "Pocket014")
pocket15.Profile = sketch16
pocket15.Length = 0.45
pocket15.Reversed = True

# Sketch on XY plane
sketch17 = body.newObject("Sketcher::SketchObject", "Sketch016")
sketch17.AttachmentSupport = (doc.getObject("XY_Plane"), [""])
sketch17.MapMode = "FlatFace"
sketch17.AttachmentOffset = App.Placement(V(0, 0, -1.25), App.Rotation())
sketch17.addGeometry(Part.LineSegment(V(-3.817136, -7.5, 0), V(-3.817136, -6.75, 0)), False)
sketch17.addGeometry(Part.LineSegment(V(-3.817136, -6.75, 0), V(3.817136, -6.75, 0)), False)
sketch17.addGeometry(Part.LineSegment(V(3.817136, -6.75, 0), V(3.817136, -7.5, 0)), False)
sketch17.addGeometry(Part.LineSegment(V(3.817136, -7.5, 0), V(-3.817136, -7.5, 0)), False)
sketch17.addConstraint(Sketcher.Constraint("Coincident", 0, 2, 1, 1))
sketch17.addConstraint(Sketcher.Constraint("Coincident", 1, 2, 2, 1))
sketch17.addConstraint(Sketcher.Constraint("Coincident", 2, 2, 3, 1))
sketch17.addConstraint(Sketcher.Constraint("Coincident", 3, 2, 0, 1))
sketch17.addConstraint(Sketcher.Constraint("Vertical", 0))
sketch17.addConstraint(Sketcher.Constraint("Horizontal", 1))
sketch17.addConstraint(Sketcher.Constraint("Vertical", 2))
sketch17.addConstraint(Sketcher.Constraint("Horizontal", 3))
sketch17.addConstraint(Sketcher.Constraint("DistanceY", 0, 1, 0, 2, 0.75))
sketch17.addConstraint(Sketcher.Constraint("DistanceY", 2, 2, -1, 1, 7.5))
sketch17.addConstraint(Sketcher.Constraint("DistanceX", 1, 1, 1, 2, 7.634272))
sketch17.addConstraint(Sketcher.Constraint("DistanceX", 0, 2, -1, 1, 3.817136))
pocket16 = body.newObject("PartDesign::Pocket", "Pocket015")
pocket16.Profile = sketch17
pocket16.Length = 0.45
pocket16.Reversed = True

# Sketch on XY plane
sketch18 = body.newObject("Sketcher::SketchObject", "Sketch017")
sketch18.AttachmentSupport = (doc.getObject("XY_Plane"), [""])
sketch18.MapMode = "FlatFace"
sketch18.AttachmentOffset = App.Placement(V(0, 0, -1.25), App.Rotation())
sketch18.addGeometry(Part.LineSegment(V(-3.817136, -9, 0), V(-3.817136, -8.25, 0)), False)
sketch18.addGeometry(Part.LineSegment(V(-3.817136, -8.25, 0), V(3.817136, -8.25, 0)), False)
sketch18.addGeometry(Part.LineSegment(V(3.817136, -8.25, 0), V(3.817136, -9, 0)), False)
sketch18.addGeometry(Part.LineSegment(V(3.817136, -9, 0), V(-3.817136, -9, 0)), False)
sketch18.addConstraint(Sketcher.Constraint("Coincident", 0, 2, 1, 1))
sketch18.addConstraint(Sketcher.Constraint("Coincident", 1, 2, 2, 1))
sketch18.addConstraint(Sketcher.Constraint("Coincident", 2, 2, 3, 1))
sketch18.addConstraint(Sketcher.Constraint("Coincident", 3, 2, 0, 1))
sketch18.addConstraint(Sketcher.Constraint("Vertical", 0))
sketch18.addConstraint(Sketcher.Constraint("Horizontal", 1))
sketch18.addConstraint(Sketcher.Constraint("Vertical", 2))
sketch18.addConstraint(Sketcher.Constraint("Horizontal", 3))
sketch18.addConstraint(Sketcher.Constraint("DistanceY", 2, 2, -1, 1, 9.0))
sketch18.addConstraint(Sketcher.Constraint("DistanceY", 0, 1, 0, 2, 0.75))
sketch18.addConstraint(Sketcher.Constraint("DistanceX", 1, 1, 1, 2, 7.634272))
sketch18.addConstraint(Sketcher.Constraint("DistanceX", 0, 2, -1, 1, 3.817136))
pocket17 = body.newObject("PartDesign::Pocket", "Pocket016")
pocket17.Profile = sketch18
pocket17.Length = 0.45
pocket17.Reversed = True

# Sketch on XY plane
sketch19 = body.newObject("Sketcher::SketchObject", "Sketch018")
sketch19.AttachmentSupport = (doc.getObject("XY_Plane"), [""])
sketch19.MapMode = "FlatFace"
sketch19.AttachmentOffset = App.Placement(V(0, 0, -1.25), App.Rotation())
sketch19.addGeometry(Part.LineSegment(V(-3.817136, -10.5, 0), V(-3.817136, -9.75, 0)), False)
sketch19.addGeometry(Part.LineSegment(V(-3.817136, -9.75, 0), V(3.817136, -9.75, 0)), False)
sketch19.addGeometry(Part.LineSegment(V(3.817136, -9.75, 0), V(3.817136, -10.5, 0)), False)
sketch19.addGeometry(Part.LineSegment(V(3.817136, -10.5, 0), V(-3.817136, -10.5, 0)), False)
sketch19.addConstraint(Sketcher.Constraint("Coincident", 0, 2, 1, 1))
sketch19.addConstraint(Sketcher.Constraint("Coincident", 1, 2, 2, 1))
sketch19.addConstraint(Sketcher.Constraint("Coincident", 2, 2, 3, 1))
sketch19.addConstraint(Sketcher.Constraint("Coincident", 3, 2, 0, 1))
sketch19.addConstraint(Sketcher.Constraint("Vertical", 0))
sketch19.addConstraint(Sketcher.Constraint("Horizontal", 1))
sketch19.addConstraint(Sketcher.Constraint("Vertical", 2))
sketch19.addConstraint(Sketcher.Constraint("Horizontal", 3))
sketch19.addConstraint(Sketcher.Constraint("DistanceY", 0, 1, 0, 2, 0.75))
sketch19.addConstraint(Sketcher.Constraint("DistanceY", 2, 2, -1, 1, 10.5))
sketch19.addConstraint(Sketcher.Constraint("DistanceX", 1, 1, 1, 2, 7.634272))
sketch19.addConstraint(Sketcher.Constraint("DistanceX", 0, 2, -1, 1, 3.817136))
pocket18 = body.newObject("PartDesign::Pocket", "Pocket017")
pocket18.Profile = sketch19
pocket18.Length = 0.45
pocket18.Reversed = True

# Sketch on XY plane
sketch20 = body.newObject("Sketcher::SketchObject", "Sketch019")
sketch20.AttachmentSupport = (doc.getObject("XY_Plane"), [""])
sketch20.MapMode = "FlatFace"
sketch20.AttachmentOffset = App.Placement(V(0, 0, -1.25), App.Rotation())
sketch20.addGeometry(Part.LineSegment(V(-3.817136, -12, 0), V(-3.817136, -11.25, 0)), False)
sketch20.addGeometry(Part.LineSegment(V(-3.817136, -11.25, 0), V(3.817136, -11.25, 0)), False)
sketch20.addGeometry(Part.LineSegment(V(3.817136, -11.25, 0), V(3.817136, -12, 0)), False)
sketch20.addGeometry(Part.LineSegment(V(3.817136, -12, 0), V(-3.817136, -12, 0)), False)
sketch20.addConstraint(Sketcher.Constraint("Coincident", 0, 2, 1, 1))
sketch20.addConstraint(Sketcher.Constraint("Coincident", 1, 2, 2, 1))
sketch20.addConstraint(Sketcher.Constraint("Coincident", 2, 2, 3, 1))
sketch20.addConstraint(Sketcher.Constraint("Coincident", 3, 2, 0, 1))
sketch20.addConstraint(Sketcher.Constraint("Vertical", 0))
sketch20.addConstraint(Sketcher.Constraint("Horizontal", 1))
sketch20.addConstraint(Sketcher.Constraint("Vertical", 2))
sketch20.addConstraint(Sketcher.Constraint("Horizontal", 3))
sketch20.addConstraint(Sketcher.Constraint("DistanceY", 2, 2, -1, 1, 12.0))
sketch20.addConstraint(Sketcher.Constraint("DistanceY", 0, 1, 0, 2, 0.75))
sketch20.addConstraint(Sketcher.Constraint("DistanceX", 1, 1, 1, 2, 7.634272))
sketch20.addConstraint(Sketcher.Constraint("DistanceX", 0, 2, -1, 1, 3.817136))
pocket19 = body.newObject("PartDesign::Pocket", "Pocket018")
pocket19.Profile = sketch20
pocket19.Length = 0.45
pocket19.Reversed = True

# Sketch on XY plane
sketch21 = body.newObject("Sketcher::SketchObject", "Sketch020")
sketch21.AttachmentSupport = (doc.getObject("XY_Plane"), [""])
sketch21.MapMode = "FlatFace"
sketch21.AttachmentOffset = App.Placement(V(0, 0, -1.25), App.Rotation())
sketch21.addGeometry(Part.LineSegment(V(-3.817136, -13.5, 0), V(-3.817136, -12.75, 0)), False)
sketch21.addGeometry(Part.LineSegment(V(-3.817136, -12.75, 0), V(3.817136, -12.75, 0)), False)
sketch21.addGeometry(Part.LineSegment(V(3.817136, -12.75, 0), V(3.817136, -13.5, 0)), False)
sketch21.addGeometry(Part.LineSegment(V(3.817136, -13.5, 0), V(-3.817136, -13.5, 0)), False)
sketch21.addConstraint(Sketcher.Constraint("Coincident", 0, 2, 1, 1))
sketch21.addConstraint(Sketcher.Constraint("Coincident", 1, 2, 2, 1))
sketch21.addConstraint(Sketcher.Constraint("Coincident", 2, 2, 3, 1))
sketch21.addConstraint(Sketcher.Constraint("Coincident", 3, 2, 0, 1))
sketch21.addConstraint(Sketcher.Constraint("Vertical", 0))
sketch21.addConstraint(Sketcher.Constraint("Horizontal", 1))
sketch21.addConstraint(Sketcher.Constraint("Vertical", 2))
sketch21.addConstraint(Sketcher.Constraint("Horizontal", 3))
sketch21.addConstraint(Sketcher.Constraint("DistanceY", 0, 1, 0, 2, 0.75))
sketch21.addConstraint(Sketcher.Constraint("DistanceY", 2, 2, -1, 1, 13.5))
sketch21.addConstraint(Sketcher.Constraint("DistanceX", 1, 1, 1, 2, 7.634272))
sketch21.addConstraint(Sketcher.Constraint("DistanceX", 0, 2, -1, 1, 3.817136))
pocket20 = body.newObject("PartDesign::Pocket", "Pocket019")
pocket20.Profile = sketch21
pocket20.Length = 0.45
pocket20.Reversed = True

doc.recompute()
